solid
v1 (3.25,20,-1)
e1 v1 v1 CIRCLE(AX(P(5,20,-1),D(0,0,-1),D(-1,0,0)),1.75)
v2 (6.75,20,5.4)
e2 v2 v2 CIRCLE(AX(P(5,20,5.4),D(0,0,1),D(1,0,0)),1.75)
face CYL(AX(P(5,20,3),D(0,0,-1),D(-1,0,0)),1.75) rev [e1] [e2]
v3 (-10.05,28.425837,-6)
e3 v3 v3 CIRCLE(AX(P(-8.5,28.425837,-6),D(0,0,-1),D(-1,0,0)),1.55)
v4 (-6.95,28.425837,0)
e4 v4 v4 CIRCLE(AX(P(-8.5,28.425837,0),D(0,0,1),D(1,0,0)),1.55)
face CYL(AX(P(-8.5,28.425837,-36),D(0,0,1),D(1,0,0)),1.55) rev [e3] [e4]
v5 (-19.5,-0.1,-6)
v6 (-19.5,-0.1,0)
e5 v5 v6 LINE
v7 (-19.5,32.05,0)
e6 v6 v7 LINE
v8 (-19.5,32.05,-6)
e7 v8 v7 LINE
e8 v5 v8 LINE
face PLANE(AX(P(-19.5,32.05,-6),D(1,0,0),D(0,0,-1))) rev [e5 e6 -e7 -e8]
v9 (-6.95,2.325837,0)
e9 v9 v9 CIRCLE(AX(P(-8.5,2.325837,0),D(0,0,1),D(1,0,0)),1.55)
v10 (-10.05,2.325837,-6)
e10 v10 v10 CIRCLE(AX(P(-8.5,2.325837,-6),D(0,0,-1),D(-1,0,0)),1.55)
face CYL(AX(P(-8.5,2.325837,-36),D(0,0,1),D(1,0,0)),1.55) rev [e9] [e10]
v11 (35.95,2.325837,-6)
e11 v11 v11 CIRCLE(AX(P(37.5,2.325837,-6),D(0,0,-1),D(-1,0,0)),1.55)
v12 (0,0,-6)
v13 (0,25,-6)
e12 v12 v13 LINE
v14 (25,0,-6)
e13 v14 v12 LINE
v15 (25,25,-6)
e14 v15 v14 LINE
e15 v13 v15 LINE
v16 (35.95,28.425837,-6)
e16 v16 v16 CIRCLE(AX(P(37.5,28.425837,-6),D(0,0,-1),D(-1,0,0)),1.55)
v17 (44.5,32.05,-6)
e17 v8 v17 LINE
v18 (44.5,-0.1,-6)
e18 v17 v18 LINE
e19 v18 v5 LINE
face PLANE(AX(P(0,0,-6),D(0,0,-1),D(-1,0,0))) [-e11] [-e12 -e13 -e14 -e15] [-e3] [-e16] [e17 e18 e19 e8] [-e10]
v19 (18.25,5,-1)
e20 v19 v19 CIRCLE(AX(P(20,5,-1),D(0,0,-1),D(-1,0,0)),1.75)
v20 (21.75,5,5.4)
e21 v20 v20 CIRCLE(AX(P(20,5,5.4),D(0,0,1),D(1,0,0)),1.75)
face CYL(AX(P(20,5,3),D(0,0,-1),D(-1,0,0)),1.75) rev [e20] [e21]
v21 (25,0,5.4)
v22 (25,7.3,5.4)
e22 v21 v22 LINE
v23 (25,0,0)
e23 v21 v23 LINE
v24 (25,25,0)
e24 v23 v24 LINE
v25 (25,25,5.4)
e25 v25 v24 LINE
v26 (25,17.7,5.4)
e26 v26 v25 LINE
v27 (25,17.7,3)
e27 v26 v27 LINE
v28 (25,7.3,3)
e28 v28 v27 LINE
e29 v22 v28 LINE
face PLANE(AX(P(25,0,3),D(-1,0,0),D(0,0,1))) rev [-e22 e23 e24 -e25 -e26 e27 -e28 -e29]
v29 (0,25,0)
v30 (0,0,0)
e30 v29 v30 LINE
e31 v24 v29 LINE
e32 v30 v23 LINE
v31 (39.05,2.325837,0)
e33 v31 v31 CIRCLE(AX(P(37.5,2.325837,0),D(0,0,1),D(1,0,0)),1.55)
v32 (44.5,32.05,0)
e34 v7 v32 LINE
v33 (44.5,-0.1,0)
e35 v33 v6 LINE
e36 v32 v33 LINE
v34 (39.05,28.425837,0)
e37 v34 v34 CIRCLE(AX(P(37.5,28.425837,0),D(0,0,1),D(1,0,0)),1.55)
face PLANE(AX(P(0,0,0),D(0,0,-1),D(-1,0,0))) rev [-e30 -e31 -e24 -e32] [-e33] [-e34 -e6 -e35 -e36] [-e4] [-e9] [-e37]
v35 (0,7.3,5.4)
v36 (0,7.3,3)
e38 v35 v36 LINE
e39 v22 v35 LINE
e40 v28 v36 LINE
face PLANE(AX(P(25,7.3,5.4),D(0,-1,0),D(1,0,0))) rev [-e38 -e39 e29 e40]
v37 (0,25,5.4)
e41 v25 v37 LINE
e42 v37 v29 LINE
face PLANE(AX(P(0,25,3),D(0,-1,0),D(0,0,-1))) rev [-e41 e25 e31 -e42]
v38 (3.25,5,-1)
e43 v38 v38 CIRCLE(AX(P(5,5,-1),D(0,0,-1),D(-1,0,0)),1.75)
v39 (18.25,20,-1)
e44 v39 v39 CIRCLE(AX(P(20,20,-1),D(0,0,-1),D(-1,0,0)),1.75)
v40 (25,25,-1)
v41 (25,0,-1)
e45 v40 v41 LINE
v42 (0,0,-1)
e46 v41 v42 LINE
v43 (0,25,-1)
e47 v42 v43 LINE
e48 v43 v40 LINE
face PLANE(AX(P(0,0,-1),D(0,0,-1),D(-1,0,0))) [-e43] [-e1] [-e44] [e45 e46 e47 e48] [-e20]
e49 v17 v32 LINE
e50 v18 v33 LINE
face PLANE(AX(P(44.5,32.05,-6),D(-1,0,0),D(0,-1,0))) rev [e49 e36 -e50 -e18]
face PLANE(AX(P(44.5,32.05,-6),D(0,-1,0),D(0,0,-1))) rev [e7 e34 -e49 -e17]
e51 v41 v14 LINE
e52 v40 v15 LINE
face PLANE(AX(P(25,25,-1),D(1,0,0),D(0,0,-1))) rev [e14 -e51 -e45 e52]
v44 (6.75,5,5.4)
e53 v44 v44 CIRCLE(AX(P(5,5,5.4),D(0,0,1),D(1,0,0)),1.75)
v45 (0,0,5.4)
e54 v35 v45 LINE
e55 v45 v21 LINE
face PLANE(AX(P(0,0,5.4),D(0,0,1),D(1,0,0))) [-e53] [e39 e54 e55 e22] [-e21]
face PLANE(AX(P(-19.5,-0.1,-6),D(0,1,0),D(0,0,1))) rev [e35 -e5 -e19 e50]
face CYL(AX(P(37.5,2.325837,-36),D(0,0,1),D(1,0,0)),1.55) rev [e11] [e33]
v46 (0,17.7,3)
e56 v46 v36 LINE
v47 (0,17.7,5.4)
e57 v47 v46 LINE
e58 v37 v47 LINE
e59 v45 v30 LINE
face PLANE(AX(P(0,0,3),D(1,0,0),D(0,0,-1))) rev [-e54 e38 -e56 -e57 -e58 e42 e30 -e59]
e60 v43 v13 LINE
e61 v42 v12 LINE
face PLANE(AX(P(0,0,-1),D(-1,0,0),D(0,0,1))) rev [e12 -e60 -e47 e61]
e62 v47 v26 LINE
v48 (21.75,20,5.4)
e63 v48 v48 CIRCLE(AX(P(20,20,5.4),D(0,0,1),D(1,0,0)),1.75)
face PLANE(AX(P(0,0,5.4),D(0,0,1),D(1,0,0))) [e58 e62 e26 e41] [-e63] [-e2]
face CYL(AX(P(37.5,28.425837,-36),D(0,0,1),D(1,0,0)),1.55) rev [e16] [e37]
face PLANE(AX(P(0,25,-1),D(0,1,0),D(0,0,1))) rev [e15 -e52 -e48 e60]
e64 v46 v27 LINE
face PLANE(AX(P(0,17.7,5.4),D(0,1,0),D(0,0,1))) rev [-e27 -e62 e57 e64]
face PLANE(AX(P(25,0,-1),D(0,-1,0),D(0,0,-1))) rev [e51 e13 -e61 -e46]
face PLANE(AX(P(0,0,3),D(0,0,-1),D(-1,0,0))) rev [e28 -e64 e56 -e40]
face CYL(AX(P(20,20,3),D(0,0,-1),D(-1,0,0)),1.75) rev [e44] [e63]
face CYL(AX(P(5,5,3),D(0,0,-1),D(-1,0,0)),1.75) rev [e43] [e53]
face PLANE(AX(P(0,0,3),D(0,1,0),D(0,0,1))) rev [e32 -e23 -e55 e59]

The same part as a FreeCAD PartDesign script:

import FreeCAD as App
import Part
import Sketcher
from FreeCAD import Vector


def add_polygon(sketch, points):
    """Adds a closed chain of lines whose ends are joined by coincident constraints."""
    first, n = sketch.GeometryCount, len(points)
    for a, b in zip(points, points[1:] + points[:1]):
        sketch.addGeometry(Part.LineSegment(App.Vector(*a, 0), App.Vector(*b, 0)), False)
    for i in range(n):
        sketch.addConstraint(Sketcher.Constraint("Coincident", first + i, 2, first + (i + 1) % n, 1))

doc = App.newDocument("Part")
body = doc.addObject("PartDesign::Body", "Body")

sketch1 = doc.addObject("Sketcher::SketchObject", "Sketch")
body.addObject(sketch1)
sketch1.AttachmentSupport = (doc.XY_Plane, [""])
sketch1.MapMode = "FlatFace"
add_polygon(sketch1, [(0, 25), (0, 0), (25, 0), (25, 25)])
sketch1.addGeometry(Part.Circle(Vector(5, 5, 0), Vector(0, 0, 1), 1.8), False)
sketch1.addGeometry(Part.Circle(Vector(20, 5, 0), Vector(0, 0, 1), 1.8), False)
sketch1.addGeometry(Part.Circle(Vector(5, 20, 0), Vector(0, 0, 1), 1.8), False)
sketch1.addGeometry(Part.Circle(Vector(20, 20, 0), Vector(0, 0, 1), 1.8), False)
sketch1.addConstraint([
    Sketcher.Constraint("Vertical", 0),
    Sketcher.Constraint("Horizontal", 1),
    Sketcher.Constraint("Vertical", 2),
    Sketcher.Constraint("Horizontal", 3),
    Sketcher.Constraint("Coincident", 0, 2, -1, 1),
    Sketcher.Constraint("Equal", 4, 5),
    Sketcher.Constraint("Equal", 5, 6),
    Sketcher.Constraint("Equal", 6, 7),
    Sketcher.Constraint("Horizontal", 4, 3, 5, 3),
    Sketcher.Constraint("Horizontal", 6, 3, 7, 3),
    Sketcher.Constraint("Vertical", 4, 3, 6, 3),
    Sketcher.Constraint("Vertical", 5, 3, 7, 3),
    Sketcher.Constraint("Equal", 3, 0),
    Sketcher.Constraint("Diameter", 4, 3.5),
    Sketcher.Constraint("DistanceX", 1, 1, 1, 2, 25.0),
    Sketcher.Constraint("DistanceX", -1, 1, 4, 3, 5.0),
    Sketcher.Constraint("DistanceY", -1, 1, 4, 3, 5.0),
    Sketcher.Constraint("DistanceX", -1, 1, 5, 3, 20.0),
    Sketcher.Constraint("DistanceY", -1, 1, 6, 3, 20.0),
])
pad1 = doc.addObject("PartDesign::Pad", "Pad")
body.addObject(pad1)
pad1.Profile = sketch1
pad1.Length = 3

sketch2 = doc.addObject("Sketcher::SketchObject", "Sketch001")
body.addObject(sketch2)
sketch2.AttachmentSupport = (doc.XY_Plane, [""])
sketch2.MapMode = "FlatFace"
sketch2.AttachmentOffset = App.Placement(Vector(0, 0, 3), App.Rotation())
add_polygon(sketch2, [(0, 25), (0, 18), (25, 18), (25, 25)])
add_polygon(sketch2, [(0, 7), (0, 0), (25, 0), (25, 7)])
sketch2.addConstraint([
    Sketcher.Constraint("Vertical", 0),
    Sketcher.Constraint("Horizontal", 1),
    Sketcher.Constraint("Vertical", 2),
    Sketcher.Constraint("Horizontal", 3),
    Sketcher.Constraint("Vertical", 4),
    Sketcher.Constraint("Horizontal", 5),
    Sketcher.Constraint("Vertical", 6),
    Sketcher.Constraint("Horizontal", 7),
    Sketcher.Constraint("Coincident", 4, 2, -1, 1),
    Sketcher.Constraint("PointOnObject", 0, 2, -2),
    Sketcher.Constraint("Vertical", 2, 2, 5, 2),
    Sketcher.Constraint("Equal", 2, 4),
    Sketcher.Constraint("DistanceX", 1, 1, 1, 2, 25.0),
    Sketcher.Constraint("DistanceY", 0, 2, 0, 1, 7.3),
    Sketcher.Constraint("DistanceY", -1, 1, 2, 2, 25.0),
])
pad2 = doc.addObject("PartDesign::Pad", "Pad001")
body.addObject(pad2)
pad2.Profile = sketch2
pad2.Length = 2.4

sketch3 = doc.addObject("Sketcher::SketchObject", "Sketch002")
body.addObject(sketch3)
sketch3.AttachmentSupport = (doc.XY_Plane, [""])
sketch3.MapMode = "FlatFace"
sketch3.AttachmentOffset = App.Placement(Vector(0, 0, 5.4), App.Rotation())
sketch3.addGeometry([
    Part.Circle(Vector(5, 5, 0), Vector(0, 0, 1), 1.8),
    Part.Circle(Vector(20, 5, 0), Vector(0, 0, 1), 1.8),
    Part.Circle(Vector(20, 20, 0), Vector(0, 0, 1), 1.8),
    Part.Circle(Vector(5, 20, 0), Vector(0, 0, 1), 1.8),
], False)
sketch3.addConstraint([
    Sketcher.Constraint("Equal", 0, 1),
    Sketcher.Constraint("Equal", 1, 2),
    Sketcher.Constraint("Equal", 2, 3),
    Sketcher.Constraint("Horizontal", 0, 3, 1, 3),
    Sketcher.Constraint("Horizontal", 2, 3, 3, 3),
    Sketcher.Constraint("Vertical", 1, 3, 2, 3),
    Sketcher.Constraint("Vertical", 0, 3, 3, 3),
    Sketcher.Constraint("Diameter", 0, 3.5),
    Sketcher.Constraint("DistanceX", -1, 1, 0, 3, 5.0),
    Sketcher.Constraint("DistanceY", -1, 1, 0, 3, 5.0),
    Sketcher.Constraint("DistanceX", -1, 1, 1, 3, 20.0),
    Sketcher.Constraint("DistanceY", -1, 1, 2, 3, 20.0),
])
pocket1 = doc.addObject("PartDesign::Pocket", "Pocket")
body.addObject(pocket1)
pocket1.Profile = sketch3
pocket1.Type = "ThroughAll"

sketch4 = doc.addObject("Sketcher::SketchObject", "Sketch003")
body.addObject(sketch4)
sketch4.AttachmentSupport = (doc.XY_Plane, [""])
sketch4.MapMode = "FlatFace"
add_polygon(sketch4, [(44, 32), (44, -4), (-20, -4), (-20, 32)])
sketch4.addConstraint([
    Sketcher.Constraint("Vertical", 0),
    Sketcher.Constraint("Horizontal", 1),
    Sketcher.Constraint("Vertical", 2),
    Sketcher.Constraint("Horizontal", 3),
    Sketcher.Constraint("DistanceX", 1, 2, 1, 1, 64.0),
    Sketcher.Constraint("DistanceY", 0, 2, 0, 1, 36.1),
    Sketcher.Constraint("DistanceX", -1, 1, 0, 2, 44.5),
    Sketcher.Constraint("DistanceY", 0, 2, -1, 1, 4.05),
])
pad3 = doc.addObject("PartDesign::Pad", "Pad002")
body.addObject(pad3)
pad3.Profile = sketch4
pad3.Length = 6
pad3.Reversed = True

sketch5 = doc.addObject("Sketcher::SketchObject", "Sketch004")
body.addObject(sketch5)
sketch5.AttachmentSupport = (doc.XY_Plane, [""])
sketch5.MapMode = "FlatFace"
sketch5.AttachmentOffset = App.Placement(Vector(0, 0, -6), App.Rotation())
add_polygon(sketch5, [(25, 25), (25, 0), (0, 0), (0, 25)])
sketch5.addConstraint([
    Sketcher.Constraint("Vertical", 0),
    Sketcher.Constraint("Horizontal", 1),
    Sketcher.Constraint("Vertical", 2),
    Sketcher.Constraint("Horizontal", 3),
    Sketcher.Constraint("Coincident", 1, 2, -1, 1),
    Sketcher.Constraint("Equal", 3, 0),
    Sketcher.Constraint("DistanceX", 1, 2, 1, 1, 25.0),
])
pocket2 = doc.addObject("PartDesign::Pocket", "Pocket001")
body.addObject(pocket2)
pocket2.Profile = sketch5
pocket2.Length = 5
pocket2.Reversed = True

sketch6 = doc.addObject("Sketcher::SketchObject", "Sketch005")
body.addObject(sketch6)
sketch6.AttachmentSupport = (doc.XY_Plane, [""])
sketch6.MapMode = "FlatFace"
sketch6.addGeometry([
    Part.Circle(Vector(37.5, 2.3, 0), Vector(0, 0, 1), 1.6),
    Part.Circle(Vector(-8.5, 2.3, 0), Vector(0, 0, 1), 1.6),
    Part.Circle(Vector(-8.5, 28.4, 0), Vector(0, 0, 1), 1.6),
    Part.Circle(Vector(37.5, 28.4, 0), Vector(0, 0, 1), 1.6),
], False)
sketch6.addConstraint([
    Sketcher.Constraint("Equal", 0, 1),
    Sketcher.Constraint("Equal", 1, 2),
    Sketcher.Constraint("Equal", 2, 3),
    Sketcher.Constraint("Horizontal", 0, 3, 1, 3),
    Sketcher.Constraint("Horizontal", 2, 3, 3, 3),
    Sketcher.Constraint("Vertical", 1, 3, 2, 3),
    Sketcher.Constraint("Vertical", 0, 3, 3, 3),
    Sketcher.Constraint("Diameter", 0, 3.1),
    Sketcher.Constraint("DistanceX", 1, 3, 0, 3, 46.0),
    Sketcher.Constraint("DistanceX", -1, 1, 0, 3, 37.5),
    Sketcher.Constraint("DistanceY", 1, 3, 2, 3, 26.1),
    Sketcher.Constraint("DistanceY", -1, 1, 0, 3, 2.325837),
])
pocket3 = doc.addObject("PartDesign::Pocket", "Pocket002")
body.addObject(pocket3)
pocket3.Profile = sketch6
pocket3.Length = 36

sketch7 = doc.addObject("Sketcher::SketchObject", "Sketch006")
body.addObject(sketch7)
sketch7.AttachmentSupport = (doc.XY_Plane, [""])
sketch7.MapMode = "FlatFace"
sketch7.AttachmentOffset = App.Placement(Vector(0, 0, 5.4), App.Rotation())
sketch7.addGeometry([
    Part.Circle(Vector(5, 5, 0), Vector(0, 0, 1), 1.8),
    Part.Circle(Vector(20, 5, 0), Vector(0, 0, 1), 1.8),
    Part.Circle(Vector(20, 20, 0), Vector(0, 0, 1), 1.8),
    Part.Circle(Vector(5, 20, 0), Vector(0, 0, 1), 1.8),
], False)
sketch7.addConstraint([
    Sketcher.Constraint("Equal", 0, 1),
    Sketcher.Constraint("Equal", 1, 2),
    Sketcher.Constraint("Equal", 2, 3),
    Sketcher.Constraint("Horizontal", 0, 3, 1, 3),
    Sketcher.Constraint("Horizontal", 2, 3, 3, 3),
    Sketcher.Constraint("Vertical", 1, 3, 2, 3),
    Sketcher.Constraint("Vertical", 0, 3, 3, 3),
    Sketcher.Constraint("Diameter", 0, 3.5),
    Sketcher.Constraint("DistanceX", -1, 1, 0, 3, 5.0),
    Sketcher.Constraint("DistanceY", -1, 1, 0, 3, 5.0),
    Sketcher.Constraint("DistanceX", -1, 1, 1, 3, 20.0),
    Sketcher.Constraint("DistanceY", -1, 1, 2, 3, 20.0),
])
pocket4 = doc.addObject("PartDesign::Pocket", "Pocket003")
body.addObject(pocket4)
pocket4.Profile = sketch7
pocket4.Type = "ThroughAll"

sketch8 = doc.addObject("Sketcher::SketchObject", "Sketch007")
body.addObject(sketch8)
sketch8.AttachmentSupport = (doc.XY_Plane, [""])
sketch8.MapMode = "FlatFace"
add_polygon(sketch8, [(-19.5, -0.1), (-19.5, -4), (44.5, -4), (44.5, -0.1)])
sketch8.addConstraint([
    Sketcher.Constraint("Vertical", 0),
    Sketcher.Constraint("Horizontal", 1),
    Sketcher.Constraint("Vertical", 2),
    Sketcher.Constraint("Horizontal", 3),
    Sketcher.Constraint("DistanceX", 1, 1, 1, 2, 64.0),
    Sketcher.Constraint("DistanceY", 0, 2, 0, 1, 3.95),
    Sketcher.Constraint("DistanceX", 0, 2, -1, 1, 19.5),
    Sketcher.Constraint("DistanceY", 2, 2, -1, 1, 0.1),
])
pocket5 = doc.addObject("PartDesign::Pocket", "Pocket004")
body.addObject(pocket5)
pocket5.Profile = sketch8
pocket5.Type = "ThroughAll"

doc.recompute()
